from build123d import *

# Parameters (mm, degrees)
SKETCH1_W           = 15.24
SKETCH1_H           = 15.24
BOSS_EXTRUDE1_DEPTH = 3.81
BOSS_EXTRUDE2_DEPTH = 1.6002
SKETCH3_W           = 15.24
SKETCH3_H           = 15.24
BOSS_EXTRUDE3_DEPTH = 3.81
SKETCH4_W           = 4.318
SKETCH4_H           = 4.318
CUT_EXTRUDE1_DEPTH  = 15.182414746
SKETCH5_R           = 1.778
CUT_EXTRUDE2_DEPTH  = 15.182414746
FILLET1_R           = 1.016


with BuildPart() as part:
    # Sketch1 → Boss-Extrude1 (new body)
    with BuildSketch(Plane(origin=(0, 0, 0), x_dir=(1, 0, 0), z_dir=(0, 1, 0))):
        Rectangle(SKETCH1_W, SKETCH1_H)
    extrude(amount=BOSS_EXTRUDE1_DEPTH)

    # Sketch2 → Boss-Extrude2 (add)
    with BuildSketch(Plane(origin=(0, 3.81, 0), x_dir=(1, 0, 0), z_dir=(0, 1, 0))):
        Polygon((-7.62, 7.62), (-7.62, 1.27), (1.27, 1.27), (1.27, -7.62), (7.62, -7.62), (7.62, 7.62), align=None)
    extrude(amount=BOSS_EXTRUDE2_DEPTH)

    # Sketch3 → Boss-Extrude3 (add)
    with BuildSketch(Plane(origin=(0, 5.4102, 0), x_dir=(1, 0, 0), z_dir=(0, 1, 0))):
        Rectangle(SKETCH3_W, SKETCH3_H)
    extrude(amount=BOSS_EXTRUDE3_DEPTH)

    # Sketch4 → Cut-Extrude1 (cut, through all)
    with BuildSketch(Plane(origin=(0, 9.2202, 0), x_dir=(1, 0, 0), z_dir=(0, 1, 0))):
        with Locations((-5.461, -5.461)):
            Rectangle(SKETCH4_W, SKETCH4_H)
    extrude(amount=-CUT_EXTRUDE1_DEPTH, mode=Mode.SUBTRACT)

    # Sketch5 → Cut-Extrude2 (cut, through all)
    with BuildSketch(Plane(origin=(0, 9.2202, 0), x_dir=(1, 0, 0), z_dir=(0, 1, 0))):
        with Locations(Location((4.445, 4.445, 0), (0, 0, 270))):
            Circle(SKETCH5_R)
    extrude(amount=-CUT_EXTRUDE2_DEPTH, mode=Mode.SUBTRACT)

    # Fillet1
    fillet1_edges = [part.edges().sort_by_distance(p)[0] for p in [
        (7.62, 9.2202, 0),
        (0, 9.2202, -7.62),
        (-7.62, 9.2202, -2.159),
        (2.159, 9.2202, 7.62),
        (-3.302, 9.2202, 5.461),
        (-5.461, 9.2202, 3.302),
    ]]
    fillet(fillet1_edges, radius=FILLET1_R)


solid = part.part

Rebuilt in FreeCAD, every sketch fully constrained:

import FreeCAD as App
import Part
import Sketcher
from FreeCAD import Vector
Q = App.Units.Quantity


def edges_at(feature, points):
    """Names of the edges that pass closest to the given points."""
    edges = feature.Shape.Edges
    near = lambda p: min(range(len(edges)), key=lambda i: edges[i].distToShape(Part.Vertex(*p))[0])
    return sorted({f"Edge{near(p) + 1}" for p in points})


def add_polygon(sketch, points):
    """Adds a closed chain of lines whose ends are joined by coincident constraints."""
    first, n = sketch.GeometryCount, len(points)
    for a, b in zip(points, points[1:] + points[:1]):
        sketch.addGeometry(Part.LineSegment(App.Vector(*a, 0), App.Vector(*b, 0)), False)
    for i in range(n):
        sketch.addConstraint(Sketcher.Constraint("Coincident", first + i, 2, first + (i + 1) % n, 1))

doc = App.newDocument("Part")
body = doc.addObject("PartDesign::Body", "Body")

# Sketch on XZ plane
sketch1 = body.newObject("Sketcher::SketchObject", "Sketch")
sketch1.AttachmentSupport = (doc.getObject("XZ_Plane"), [""])
sketch1.MapMode = "FlatFace"
add_polygon(sketch1, [(-8, -8), (-8, 8), (8, 8), (8, -8)])  # lines 0-3
sketch1.addConstraint([
    Sketcher.Constraint("Vertical", 0),
    Sketcher.Constraint("Horizontal", 1),
    Sketcher.Constraint("Vertical", 2),
    Sketcher.Constraint("Horizontal", 3),
    Sketcher.Constraint("Symmetric", 0, 2, 2, 2, -1, 1),
    Sketcher.Constraint("Equal", 3, 0),
    Sketcher.Constraint("DistanceX", 1, 1, 1, 2, Q("0.6 in")),
])
pad1 = body.newObject("PartDesign::Pad", "Pad")
pad1.Profile = sketch1
pad1.Length = Q("0.15 in")
pad1.Reversed = True

# Sketch on XZ plane
sketch2 = body.newObject("Sketcher::SketchObject", "Sketch001")
sketch2.AttachmentSupport = (doc.getObject("XZ_Plane"), [""])
sketch2.MapMode = "FlatFace"
sketch2.AttachmentOffset = App.Placement(Vector(0, 0, -0.15 * 25.4), App.Rotation())
add_polygon(sketch2, [(-8, -8), (-8, -1), (1, -1), (1, 8), (8, 8), (8, -8)])  # lines 0-5
sketch2.addConstraint([
    Sketcher.Constraint("Vertical", 0),
    Sketcher.Constraint("Horizontal", 1),
    Sketcher.Constraint("Vertical", 2),
    Sketcher.Constraint("Horizontal", 3),
    Sketcher.Constraint("Vertical", 4),
    Sketcher.Constraint("Horizontal", 5),
    Sketcher.Constraint("Symmetric", 3, 2, 5, 2, -1, 1),
    Sketcher.Constraint("Equal", 3, 0),
    Sketcher.Constraint("Equal", 1, 2),
    Sketcher.Constraint("DistanceX", 5, 2, 5, 1, Q("0.6 in")),
    Sketcher.Constraint("DistanceX", 1, 1, 1, 2, Q("0.35 in")),
])
pad2 = body.newObject("PartDesign::Pad", "Pad001")
pad2.Profile = sketch2
pad2.Length = Q("0.063 in")
pad2.Reversed = True

# Sketch on XZ plane
sketch3 = body.newObject("Sketcher::SketchObject", "Sketch002")
sketch3.AttachmentSupport = (doc.getObject("XZ_Plane"), [""])
sketch3.MapMode = "FlatFace"
sketch3.AttachmentOffset = App.Placement(Vector(0, 0, -0.213 * 25.4), App.Rotation())
add_polygon(sketch3, [(-8, -8), (-8, 8), (8, 8), (8, -8)])  # lines 0-3
sketch3.addConstraint([
    Sketcher.Constraint("Vertical", 0),
    Sketcher.Constraint("Horizontal", 1),
    Sketcher.Constraint("Vertical", 2),
    Sketcher.Constraint("Horizontal", 3),
    Sketcher.Constraint("Symmetric", 0, 2, 2, 2, -1, 1),
    Sketcher.Constraint("Equal", 3, 0),
    Sketcher.Constraint("DistanceX", 1, 1, 1, 2, Q("0.6 in")),
])
pad3 = body.newObject("PartDesign::Pad", "Pad002")
pad3.Profile = sketch3
pad3.Length = Q("0.15 in")
pad3.Reversed = True

# Sketch on XZ plane
sketch4 = body.newObject("Sketcher::SketchObject", "Sketch003")
sketch4.AttachmentSupport = (doc.getObject("XZ_Plane"), [""])
sketch4.MapMode = "FlatFace"
sketch4.AttachmentOffset = App.Placement(Vector(0, 0, -0.363 * 25.4), App.Rotation())
add_polygon(sketch4, [(-7.6, 3.3), (-7.6, 7.6), (-3.3, 7.6), (-3.3, 3.3)])  # lines 0-3
sketch4.addConstraint([
    Sketcher.Constraint("Vertical", 0),
    Sketcher.Constraint("Horizontal", 1),
    Sketcher.Constraint("Vertical", 2),
    Sketcher.Constraint("Horizontal", 3),
    Sketcher.Constraint("Equal", 3, 0),
    Sketcher.Constraint("DistanceX", 1, 1, 1, 2, Q("0.17 in")),
    Sketcher.Constraint("DistanceX", 0, 2, -1, 1, Q("0.3 in")),
    Sketcher.Constraint("DistanceY", -1, 1, 0, 2, Q("0.3 in")),
])
pocket1 = body.newObject("PartDesign::Pocket", "Pocket")
pocket1.Profile = sketch4
pocket1.Type = "ThroughAll"
pocket1.Reversed = True

# Sketch on XZ plane
sketch5 = body.newObject("Sketcher::SketchObject", "Sketch004")
sketch5.AttachmentSupport = (doc.getObject("XZ_Plane"), [""])
sketch5.MapMode = "FlatFace"
sketch5.AttachmentOffset = App.Placement(Vector(0, 0, -0.363 * 25.4), App.Rotation())
sketch5.addGeometry(Part.Circle(Vector(4.4, -4.4, 0), Vector(0, 0, 1), 1.8), False)
sketch5.addConstraint([
    Sketcher.Constraint("Diameter", 0, Q("0.14 in")),
    Sketcher.Constraint("DistanceX", -1, 1, 0, 3, Q("0.175 in")),
    Sketcher.Constraint("DistanceY", 0, 3, -1, 1, Q("0.175 in")),
])
pocket2 = body.newObject("PartDesign::Pocket", "Pocket001")
pocket2.Profile = sketch5
pocket2.Type = "ThroughAll"
pocket2.Reversed = True
doc.recompute()

fillet = body.newObject("PartDesign::Fillet", "Fillet")
fillet.Base = (pocket2, edges_at(pocket2, [
    (7.62, 9.22, 0),
    (0, 9.22, -7.62),
    (-7.62, 9.22, -2.159),
    (2.159, 9.22, 7.62),
    (-3.302, 9.22, 5.461),
    (-5.461, 9.22, 3.302),
]))
fillet.Radius = Q("0.04 in")

doc.recompute()
